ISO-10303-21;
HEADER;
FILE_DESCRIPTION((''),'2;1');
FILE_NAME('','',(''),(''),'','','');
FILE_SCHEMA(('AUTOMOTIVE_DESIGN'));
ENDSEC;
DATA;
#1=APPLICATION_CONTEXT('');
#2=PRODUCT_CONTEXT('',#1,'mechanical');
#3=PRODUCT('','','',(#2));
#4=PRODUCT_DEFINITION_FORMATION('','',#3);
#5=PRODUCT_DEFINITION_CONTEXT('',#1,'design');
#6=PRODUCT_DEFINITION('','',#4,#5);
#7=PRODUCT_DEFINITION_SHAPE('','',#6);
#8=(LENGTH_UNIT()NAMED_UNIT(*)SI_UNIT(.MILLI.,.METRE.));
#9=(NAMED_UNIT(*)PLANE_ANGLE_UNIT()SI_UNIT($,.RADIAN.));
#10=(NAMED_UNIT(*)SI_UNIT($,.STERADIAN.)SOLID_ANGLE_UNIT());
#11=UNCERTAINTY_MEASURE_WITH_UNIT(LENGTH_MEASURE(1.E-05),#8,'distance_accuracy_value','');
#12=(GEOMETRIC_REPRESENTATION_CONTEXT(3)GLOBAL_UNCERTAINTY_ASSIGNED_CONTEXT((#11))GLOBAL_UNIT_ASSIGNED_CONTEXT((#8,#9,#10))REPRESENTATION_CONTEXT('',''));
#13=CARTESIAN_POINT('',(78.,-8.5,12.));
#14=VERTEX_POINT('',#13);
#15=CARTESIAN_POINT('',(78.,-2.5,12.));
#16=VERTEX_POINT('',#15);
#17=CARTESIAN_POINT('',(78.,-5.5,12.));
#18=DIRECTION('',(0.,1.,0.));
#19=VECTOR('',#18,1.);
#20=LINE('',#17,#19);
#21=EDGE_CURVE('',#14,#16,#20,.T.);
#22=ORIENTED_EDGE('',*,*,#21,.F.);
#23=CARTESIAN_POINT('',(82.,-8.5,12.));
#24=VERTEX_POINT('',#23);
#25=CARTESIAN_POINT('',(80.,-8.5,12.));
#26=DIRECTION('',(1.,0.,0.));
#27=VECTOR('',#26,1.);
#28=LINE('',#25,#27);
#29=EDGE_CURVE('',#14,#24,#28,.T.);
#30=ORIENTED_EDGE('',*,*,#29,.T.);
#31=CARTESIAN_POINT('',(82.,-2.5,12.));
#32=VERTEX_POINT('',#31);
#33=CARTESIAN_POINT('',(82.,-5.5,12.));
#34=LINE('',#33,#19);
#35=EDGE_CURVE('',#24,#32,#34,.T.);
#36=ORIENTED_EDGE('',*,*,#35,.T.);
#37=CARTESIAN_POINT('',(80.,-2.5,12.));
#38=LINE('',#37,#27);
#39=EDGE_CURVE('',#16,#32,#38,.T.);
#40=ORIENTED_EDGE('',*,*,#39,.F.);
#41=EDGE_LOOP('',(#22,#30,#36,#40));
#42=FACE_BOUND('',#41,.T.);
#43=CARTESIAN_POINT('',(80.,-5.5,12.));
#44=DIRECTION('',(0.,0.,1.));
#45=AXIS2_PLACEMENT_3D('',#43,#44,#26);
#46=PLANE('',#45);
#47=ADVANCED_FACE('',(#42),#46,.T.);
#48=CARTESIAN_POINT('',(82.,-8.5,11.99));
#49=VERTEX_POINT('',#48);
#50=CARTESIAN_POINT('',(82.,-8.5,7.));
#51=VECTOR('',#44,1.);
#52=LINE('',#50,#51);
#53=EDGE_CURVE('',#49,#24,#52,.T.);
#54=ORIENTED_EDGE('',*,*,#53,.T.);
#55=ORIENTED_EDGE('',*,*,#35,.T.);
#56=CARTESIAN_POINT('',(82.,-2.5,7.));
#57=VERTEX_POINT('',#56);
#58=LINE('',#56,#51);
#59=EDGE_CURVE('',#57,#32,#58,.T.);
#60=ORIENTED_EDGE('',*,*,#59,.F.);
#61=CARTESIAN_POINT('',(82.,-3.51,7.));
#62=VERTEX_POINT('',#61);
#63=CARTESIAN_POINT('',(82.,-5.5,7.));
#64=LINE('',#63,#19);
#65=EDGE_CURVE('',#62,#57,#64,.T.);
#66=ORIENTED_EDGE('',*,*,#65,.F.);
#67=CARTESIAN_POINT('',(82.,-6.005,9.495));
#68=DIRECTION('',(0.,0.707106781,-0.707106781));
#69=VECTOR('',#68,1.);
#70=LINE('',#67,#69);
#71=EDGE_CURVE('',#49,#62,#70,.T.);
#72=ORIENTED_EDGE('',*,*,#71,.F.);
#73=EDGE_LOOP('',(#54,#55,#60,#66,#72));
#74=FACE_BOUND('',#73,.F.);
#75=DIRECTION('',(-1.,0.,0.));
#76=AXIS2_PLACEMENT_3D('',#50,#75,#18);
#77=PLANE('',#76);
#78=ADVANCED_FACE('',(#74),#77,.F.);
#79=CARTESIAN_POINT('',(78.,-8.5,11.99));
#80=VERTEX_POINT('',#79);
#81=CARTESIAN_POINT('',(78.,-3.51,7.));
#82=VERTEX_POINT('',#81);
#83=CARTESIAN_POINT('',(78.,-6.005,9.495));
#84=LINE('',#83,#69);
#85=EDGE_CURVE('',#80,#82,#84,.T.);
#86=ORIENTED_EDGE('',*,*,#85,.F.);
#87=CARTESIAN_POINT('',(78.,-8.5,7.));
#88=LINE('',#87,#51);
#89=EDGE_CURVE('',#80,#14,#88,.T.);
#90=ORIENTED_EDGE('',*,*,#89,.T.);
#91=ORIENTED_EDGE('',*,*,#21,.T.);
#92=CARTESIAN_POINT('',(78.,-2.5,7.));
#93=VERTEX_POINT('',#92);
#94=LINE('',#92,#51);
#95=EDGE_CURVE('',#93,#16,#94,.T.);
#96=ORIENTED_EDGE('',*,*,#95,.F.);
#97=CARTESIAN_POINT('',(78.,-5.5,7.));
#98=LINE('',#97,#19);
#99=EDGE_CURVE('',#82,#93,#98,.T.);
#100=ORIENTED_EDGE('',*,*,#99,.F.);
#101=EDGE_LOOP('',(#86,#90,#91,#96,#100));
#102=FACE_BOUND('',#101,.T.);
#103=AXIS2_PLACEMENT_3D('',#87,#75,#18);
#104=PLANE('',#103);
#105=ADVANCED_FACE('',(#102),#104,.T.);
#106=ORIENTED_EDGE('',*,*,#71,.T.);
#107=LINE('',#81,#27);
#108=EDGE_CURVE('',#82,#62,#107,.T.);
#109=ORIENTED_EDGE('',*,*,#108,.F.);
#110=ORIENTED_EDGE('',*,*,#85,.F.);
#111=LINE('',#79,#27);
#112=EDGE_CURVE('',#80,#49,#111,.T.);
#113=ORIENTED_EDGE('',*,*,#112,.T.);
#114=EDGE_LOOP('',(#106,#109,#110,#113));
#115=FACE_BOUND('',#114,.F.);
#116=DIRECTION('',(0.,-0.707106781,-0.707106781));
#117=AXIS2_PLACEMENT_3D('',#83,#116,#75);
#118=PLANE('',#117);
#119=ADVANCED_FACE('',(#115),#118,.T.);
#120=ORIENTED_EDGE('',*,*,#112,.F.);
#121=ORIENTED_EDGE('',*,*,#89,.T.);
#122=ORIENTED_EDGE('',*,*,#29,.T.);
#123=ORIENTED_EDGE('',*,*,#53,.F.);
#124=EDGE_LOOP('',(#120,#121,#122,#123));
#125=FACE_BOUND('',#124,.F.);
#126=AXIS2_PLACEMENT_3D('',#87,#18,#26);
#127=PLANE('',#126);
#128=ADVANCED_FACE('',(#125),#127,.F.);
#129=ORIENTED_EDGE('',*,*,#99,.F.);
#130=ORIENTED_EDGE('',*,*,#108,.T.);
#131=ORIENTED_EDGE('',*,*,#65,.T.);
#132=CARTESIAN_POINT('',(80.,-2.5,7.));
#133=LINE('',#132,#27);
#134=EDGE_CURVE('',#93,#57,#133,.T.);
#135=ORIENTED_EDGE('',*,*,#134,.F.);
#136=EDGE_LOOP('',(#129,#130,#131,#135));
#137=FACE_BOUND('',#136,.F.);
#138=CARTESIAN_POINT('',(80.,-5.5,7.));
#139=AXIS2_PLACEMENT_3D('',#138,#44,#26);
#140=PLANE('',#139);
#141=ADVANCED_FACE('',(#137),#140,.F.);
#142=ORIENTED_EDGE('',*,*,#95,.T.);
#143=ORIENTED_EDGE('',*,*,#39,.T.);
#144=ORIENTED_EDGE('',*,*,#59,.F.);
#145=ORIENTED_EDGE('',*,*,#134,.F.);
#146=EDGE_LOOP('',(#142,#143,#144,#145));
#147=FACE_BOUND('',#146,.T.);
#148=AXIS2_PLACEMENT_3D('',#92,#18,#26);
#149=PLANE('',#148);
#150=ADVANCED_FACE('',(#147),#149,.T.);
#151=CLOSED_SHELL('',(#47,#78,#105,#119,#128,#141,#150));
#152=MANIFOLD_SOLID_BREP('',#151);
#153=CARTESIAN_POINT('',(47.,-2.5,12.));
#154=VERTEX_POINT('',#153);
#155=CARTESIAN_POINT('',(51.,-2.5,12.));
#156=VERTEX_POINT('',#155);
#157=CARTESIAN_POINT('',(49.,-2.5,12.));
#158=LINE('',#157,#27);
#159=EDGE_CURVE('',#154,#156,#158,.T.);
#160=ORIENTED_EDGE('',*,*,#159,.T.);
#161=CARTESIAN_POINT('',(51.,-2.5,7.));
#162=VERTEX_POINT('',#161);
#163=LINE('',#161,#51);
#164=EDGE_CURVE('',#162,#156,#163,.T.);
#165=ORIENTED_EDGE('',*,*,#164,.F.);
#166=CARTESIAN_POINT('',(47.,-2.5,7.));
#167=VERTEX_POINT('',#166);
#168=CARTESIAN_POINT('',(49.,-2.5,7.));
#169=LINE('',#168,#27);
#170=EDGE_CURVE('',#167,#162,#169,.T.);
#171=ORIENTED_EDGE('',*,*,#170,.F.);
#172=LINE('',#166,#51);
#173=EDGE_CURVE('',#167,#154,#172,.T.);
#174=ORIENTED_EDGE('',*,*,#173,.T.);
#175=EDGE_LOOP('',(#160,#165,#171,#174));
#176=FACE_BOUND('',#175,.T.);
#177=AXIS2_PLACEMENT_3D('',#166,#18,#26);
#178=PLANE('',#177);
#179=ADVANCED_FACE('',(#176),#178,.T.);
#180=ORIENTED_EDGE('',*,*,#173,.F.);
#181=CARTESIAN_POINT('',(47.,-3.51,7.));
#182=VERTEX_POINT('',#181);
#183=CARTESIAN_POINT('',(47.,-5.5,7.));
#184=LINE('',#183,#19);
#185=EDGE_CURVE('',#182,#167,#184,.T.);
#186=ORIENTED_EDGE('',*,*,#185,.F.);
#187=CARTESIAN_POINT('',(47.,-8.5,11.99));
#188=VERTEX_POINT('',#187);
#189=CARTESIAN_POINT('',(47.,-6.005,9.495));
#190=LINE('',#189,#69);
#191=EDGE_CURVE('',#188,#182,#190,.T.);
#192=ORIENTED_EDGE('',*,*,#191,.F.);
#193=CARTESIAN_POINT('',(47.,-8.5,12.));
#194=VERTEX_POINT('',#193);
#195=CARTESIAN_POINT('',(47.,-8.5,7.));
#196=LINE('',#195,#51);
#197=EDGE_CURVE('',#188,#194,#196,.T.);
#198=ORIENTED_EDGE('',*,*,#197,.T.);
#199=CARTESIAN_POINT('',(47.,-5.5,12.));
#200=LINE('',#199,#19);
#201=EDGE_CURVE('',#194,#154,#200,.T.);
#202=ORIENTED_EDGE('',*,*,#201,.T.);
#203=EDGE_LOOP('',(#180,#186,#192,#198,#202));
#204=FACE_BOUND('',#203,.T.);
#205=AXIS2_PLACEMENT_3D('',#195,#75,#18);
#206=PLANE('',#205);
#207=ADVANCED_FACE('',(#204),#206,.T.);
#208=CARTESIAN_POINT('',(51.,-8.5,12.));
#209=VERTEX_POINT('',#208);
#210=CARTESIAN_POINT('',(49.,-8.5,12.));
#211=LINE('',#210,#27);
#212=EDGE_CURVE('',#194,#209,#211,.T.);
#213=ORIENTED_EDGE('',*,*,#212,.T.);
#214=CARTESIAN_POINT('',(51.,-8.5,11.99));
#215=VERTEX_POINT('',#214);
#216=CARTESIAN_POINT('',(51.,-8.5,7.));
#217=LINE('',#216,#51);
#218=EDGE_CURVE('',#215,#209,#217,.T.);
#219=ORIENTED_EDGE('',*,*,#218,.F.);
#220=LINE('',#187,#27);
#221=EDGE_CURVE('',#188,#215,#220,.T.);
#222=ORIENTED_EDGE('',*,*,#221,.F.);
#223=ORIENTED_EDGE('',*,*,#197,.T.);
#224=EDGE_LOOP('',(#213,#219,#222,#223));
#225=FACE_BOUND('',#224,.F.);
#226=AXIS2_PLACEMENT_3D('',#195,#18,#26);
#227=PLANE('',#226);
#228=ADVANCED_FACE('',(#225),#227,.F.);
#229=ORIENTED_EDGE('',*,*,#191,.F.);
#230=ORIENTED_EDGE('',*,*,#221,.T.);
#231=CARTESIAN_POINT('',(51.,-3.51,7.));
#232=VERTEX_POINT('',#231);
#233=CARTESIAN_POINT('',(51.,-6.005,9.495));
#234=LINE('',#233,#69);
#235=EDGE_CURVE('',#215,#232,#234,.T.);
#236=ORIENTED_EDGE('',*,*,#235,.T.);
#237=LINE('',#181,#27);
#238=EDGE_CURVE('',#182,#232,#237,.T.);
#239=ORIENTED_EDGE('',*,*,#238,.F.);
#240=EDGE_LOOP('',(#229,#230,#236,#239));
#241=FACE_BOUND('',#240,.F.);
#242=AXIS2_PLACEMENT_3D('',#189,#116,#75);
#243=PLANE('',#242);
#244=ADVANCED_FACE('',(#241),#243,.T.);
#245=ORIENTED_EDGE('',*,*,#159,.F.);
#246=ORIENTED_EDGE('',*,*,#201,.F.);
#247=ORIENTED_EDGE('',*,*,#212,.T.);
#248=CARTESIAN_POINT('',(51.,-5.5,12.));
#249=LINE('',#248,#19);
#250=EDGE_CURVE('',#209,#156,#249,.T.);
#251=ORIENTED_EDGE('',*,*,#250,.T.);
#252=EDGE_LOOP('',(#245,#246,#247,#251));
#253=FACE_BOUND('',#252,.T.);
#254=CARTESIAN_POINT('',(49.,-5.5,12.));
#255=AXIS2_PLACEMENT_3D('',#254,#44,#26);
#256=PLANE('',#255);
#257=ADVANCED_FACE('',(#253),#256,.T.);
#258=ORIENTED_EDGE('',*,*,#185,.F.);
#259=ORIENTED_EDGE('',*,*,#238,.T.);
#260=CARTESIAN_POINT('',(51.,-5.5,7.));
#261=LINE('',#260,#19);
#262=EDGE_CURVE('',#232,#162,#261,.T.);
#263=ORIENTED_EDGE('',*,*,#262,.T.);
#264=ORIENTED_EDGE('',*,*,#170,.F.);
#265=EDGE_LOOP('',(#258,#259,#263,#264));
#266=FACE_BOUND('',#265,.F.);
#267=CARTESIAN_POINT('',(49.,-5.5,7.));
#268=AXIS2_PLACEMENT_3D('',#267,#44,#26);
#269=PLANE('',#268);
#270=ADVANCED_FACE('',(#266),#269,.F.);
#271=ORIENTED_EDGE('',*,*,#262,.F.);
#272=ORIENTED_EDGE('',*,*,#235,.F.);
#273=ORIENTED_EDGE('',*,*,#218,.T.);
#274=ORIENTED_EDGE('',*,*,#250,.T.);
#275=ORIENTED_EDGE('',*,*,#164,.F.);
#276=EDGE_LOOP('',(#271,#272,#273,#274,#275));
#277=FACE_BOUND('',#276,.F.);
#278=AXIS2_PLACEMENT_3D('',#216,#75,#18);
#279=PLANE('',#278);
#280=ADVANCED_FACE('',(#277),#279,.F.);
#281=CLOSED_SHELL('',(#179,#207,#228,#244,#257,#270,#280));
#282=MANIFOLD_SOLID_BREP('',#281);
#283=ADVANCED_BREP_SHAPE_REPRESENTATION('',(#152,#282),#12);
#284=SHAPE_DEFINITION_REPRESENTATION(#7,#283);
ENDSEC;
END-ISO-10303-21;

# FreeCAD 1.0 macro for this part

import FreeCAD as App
import Part
import Sketcher
Q = App.Units.Quantity


def edges_at(feature, points):
    """Names of the edges that pass closest to the given points."""
    edges = feature.Shape.Edges
    near = lambda p: min(range(len(edges)), key=lambda i: edges[i].distToShape(Part.Vertex(*p))[0])
    return sorted({f"Edge{near(p) + 1}" for p in points})

doc = App.newDocument("Part")
body = doc.addObject("PartDesign::Body", "Body")

sketch1 = body.newObject("Sketcher::SketchObject", "Sketch")
sketch1.AttachmentSupport = (doc.getObject("XY_Plane"), [""])
sketch1.MapMode = "FlatFace"
sketch1.AttachmentOffset = App.Placement(App.Vector(0, 0, 7), App.Rotation())
sketch1.addGeometry([
    Part.LineSegment(App.Vector(78, -2.5, 0), App.Vector(78, -8.5, 0)),
    Part.LineSegment(App.Vector(78, -8.5, 0), App.Vector(82, -8.5, 0)),
    Part.LineSegment(App.Vector(82, -8.5, 0), App.Vector(82, -2.5, 0)),
    Part.LineSegment(App.Vector(82, -2.5, 0), App.Vector(78, -2.5, 0)),
], False)
sketch1.addConstraint([
    Sketcher.Constraint("Coincident", 0, 2, 1, 1),
    Sketcher.Constraint("Coincident", 1, 2, 2, 1),
    Sketcher.Constraint("Coincident", 2, 2, 3, 1),
    Sketcher.Constraint("Coincident", 3, 2, 0, 1),
    Sketcher.Constraint("Vertical", 0),
    Sketcher.Constraint("Horizontal", 1),
    Sketcher.Constraint("Vertical", 2),
    Sketcher.Constraint("Horizontal", 3),
    Sketcher.Constraint("DistanceX", 1, 1, 1, 2, Q("4 mm")),
    Sketcher.Constraint("DistanceY", 0, 2, 0, 1, Q("6 mm")),
    Sketcher.Constraint("DistanceX", -1, 1, 0, 2, Q("78 mm")),
    Sketcher.Constraint("DistanceY", 0, 2, -1, 1, Q("8.5 mm")),
])
pad1 = body.newObject("PartDesign::Pad", "Pad")
pad1.Profile = sketch1
pad1.Length = 5
body2 = doc.addObject("PartDesign::Body", "Body001")
body2.AllowCompound = True

sketch2 = body2.newObject("Sketcher::SketchObject", "Sketch001")
sketch2.AttachmentSupport = (doc.getObject("XY_Plane001"), [""])
sketch2.MapMode = "FlatFace"
sketch2.AttachmentOffset = App.Placement(App.Vector(0, 0, 7), App.Rotation())
sketch2.addGeometry([
    Part.LineSegment(App.Vector(47, -2.5, 0), App.Vector(47, -8.5, 0)),
    Part.LineSegment(App.Vector(47, -8.5, 0), App.Vector(51, -8.5, 0)),
    Part.LineSegment(App.Vector(51, -8.5, 0), App.Vector(51, -2.5, 0)),
    Part.LineSegment(App.Vector(51, -2.5, 0), App.Vector(47, -2.5, 0)),
], False)
sketch2.addConstraint([
    Sketcher.Constraint("Coincident", 0, 2, 1, 1),
    Sketcher.Constraint("Coincident", 1, 2, 2, 1),
    Sketcher.Constraint("Coincident", 2, 2, 3, 1),
    Sketcher.Constraint("Coincident", 3, 2, 0, 1),
    Sketcher.Constraint("Vertical", 0),
    Sketcher.Constraint("Horizontal", 1),
    Sketcher.Constraint("Vertical", 2),
    Sketcher.Constraint("Horizontal", 3),
    Sketcher.Constraint("DistanceX", 1, 1, 1, 2, Q("4 mm")),
    Sketcher.Constraint("DistanceY", 0, 2, 0, 1, Q("6 mm")),
    Sketcher.Constraint("DistanceX", -1, 1, 0, 2, Q("47 mm")),
    Sketcher.Constraint("DistanceY", 0, 2, -1, 1, Q("8.5 mm")),
])
pad2 = body2.newObject("PartDesign::Pad", "Pad001")
pad2.Profile = sketch2
pad2.Length = 5
doc.recompute()

boolean = body2.newObject("PartDesign::Boolean", "Boolean")
boolean.Type = "Fuse"
boolean.addObjects([body])
doc.recompute()

chamfer = body2.newObject("PartDesign::Chamfer", "Chamfer")
chamfer.Base = (boolean, edges_at(boolean, [(49, -8.5, 7), (80, -8.5, 7)]))
chamfer.Size = 4.99

doc.recompute()
